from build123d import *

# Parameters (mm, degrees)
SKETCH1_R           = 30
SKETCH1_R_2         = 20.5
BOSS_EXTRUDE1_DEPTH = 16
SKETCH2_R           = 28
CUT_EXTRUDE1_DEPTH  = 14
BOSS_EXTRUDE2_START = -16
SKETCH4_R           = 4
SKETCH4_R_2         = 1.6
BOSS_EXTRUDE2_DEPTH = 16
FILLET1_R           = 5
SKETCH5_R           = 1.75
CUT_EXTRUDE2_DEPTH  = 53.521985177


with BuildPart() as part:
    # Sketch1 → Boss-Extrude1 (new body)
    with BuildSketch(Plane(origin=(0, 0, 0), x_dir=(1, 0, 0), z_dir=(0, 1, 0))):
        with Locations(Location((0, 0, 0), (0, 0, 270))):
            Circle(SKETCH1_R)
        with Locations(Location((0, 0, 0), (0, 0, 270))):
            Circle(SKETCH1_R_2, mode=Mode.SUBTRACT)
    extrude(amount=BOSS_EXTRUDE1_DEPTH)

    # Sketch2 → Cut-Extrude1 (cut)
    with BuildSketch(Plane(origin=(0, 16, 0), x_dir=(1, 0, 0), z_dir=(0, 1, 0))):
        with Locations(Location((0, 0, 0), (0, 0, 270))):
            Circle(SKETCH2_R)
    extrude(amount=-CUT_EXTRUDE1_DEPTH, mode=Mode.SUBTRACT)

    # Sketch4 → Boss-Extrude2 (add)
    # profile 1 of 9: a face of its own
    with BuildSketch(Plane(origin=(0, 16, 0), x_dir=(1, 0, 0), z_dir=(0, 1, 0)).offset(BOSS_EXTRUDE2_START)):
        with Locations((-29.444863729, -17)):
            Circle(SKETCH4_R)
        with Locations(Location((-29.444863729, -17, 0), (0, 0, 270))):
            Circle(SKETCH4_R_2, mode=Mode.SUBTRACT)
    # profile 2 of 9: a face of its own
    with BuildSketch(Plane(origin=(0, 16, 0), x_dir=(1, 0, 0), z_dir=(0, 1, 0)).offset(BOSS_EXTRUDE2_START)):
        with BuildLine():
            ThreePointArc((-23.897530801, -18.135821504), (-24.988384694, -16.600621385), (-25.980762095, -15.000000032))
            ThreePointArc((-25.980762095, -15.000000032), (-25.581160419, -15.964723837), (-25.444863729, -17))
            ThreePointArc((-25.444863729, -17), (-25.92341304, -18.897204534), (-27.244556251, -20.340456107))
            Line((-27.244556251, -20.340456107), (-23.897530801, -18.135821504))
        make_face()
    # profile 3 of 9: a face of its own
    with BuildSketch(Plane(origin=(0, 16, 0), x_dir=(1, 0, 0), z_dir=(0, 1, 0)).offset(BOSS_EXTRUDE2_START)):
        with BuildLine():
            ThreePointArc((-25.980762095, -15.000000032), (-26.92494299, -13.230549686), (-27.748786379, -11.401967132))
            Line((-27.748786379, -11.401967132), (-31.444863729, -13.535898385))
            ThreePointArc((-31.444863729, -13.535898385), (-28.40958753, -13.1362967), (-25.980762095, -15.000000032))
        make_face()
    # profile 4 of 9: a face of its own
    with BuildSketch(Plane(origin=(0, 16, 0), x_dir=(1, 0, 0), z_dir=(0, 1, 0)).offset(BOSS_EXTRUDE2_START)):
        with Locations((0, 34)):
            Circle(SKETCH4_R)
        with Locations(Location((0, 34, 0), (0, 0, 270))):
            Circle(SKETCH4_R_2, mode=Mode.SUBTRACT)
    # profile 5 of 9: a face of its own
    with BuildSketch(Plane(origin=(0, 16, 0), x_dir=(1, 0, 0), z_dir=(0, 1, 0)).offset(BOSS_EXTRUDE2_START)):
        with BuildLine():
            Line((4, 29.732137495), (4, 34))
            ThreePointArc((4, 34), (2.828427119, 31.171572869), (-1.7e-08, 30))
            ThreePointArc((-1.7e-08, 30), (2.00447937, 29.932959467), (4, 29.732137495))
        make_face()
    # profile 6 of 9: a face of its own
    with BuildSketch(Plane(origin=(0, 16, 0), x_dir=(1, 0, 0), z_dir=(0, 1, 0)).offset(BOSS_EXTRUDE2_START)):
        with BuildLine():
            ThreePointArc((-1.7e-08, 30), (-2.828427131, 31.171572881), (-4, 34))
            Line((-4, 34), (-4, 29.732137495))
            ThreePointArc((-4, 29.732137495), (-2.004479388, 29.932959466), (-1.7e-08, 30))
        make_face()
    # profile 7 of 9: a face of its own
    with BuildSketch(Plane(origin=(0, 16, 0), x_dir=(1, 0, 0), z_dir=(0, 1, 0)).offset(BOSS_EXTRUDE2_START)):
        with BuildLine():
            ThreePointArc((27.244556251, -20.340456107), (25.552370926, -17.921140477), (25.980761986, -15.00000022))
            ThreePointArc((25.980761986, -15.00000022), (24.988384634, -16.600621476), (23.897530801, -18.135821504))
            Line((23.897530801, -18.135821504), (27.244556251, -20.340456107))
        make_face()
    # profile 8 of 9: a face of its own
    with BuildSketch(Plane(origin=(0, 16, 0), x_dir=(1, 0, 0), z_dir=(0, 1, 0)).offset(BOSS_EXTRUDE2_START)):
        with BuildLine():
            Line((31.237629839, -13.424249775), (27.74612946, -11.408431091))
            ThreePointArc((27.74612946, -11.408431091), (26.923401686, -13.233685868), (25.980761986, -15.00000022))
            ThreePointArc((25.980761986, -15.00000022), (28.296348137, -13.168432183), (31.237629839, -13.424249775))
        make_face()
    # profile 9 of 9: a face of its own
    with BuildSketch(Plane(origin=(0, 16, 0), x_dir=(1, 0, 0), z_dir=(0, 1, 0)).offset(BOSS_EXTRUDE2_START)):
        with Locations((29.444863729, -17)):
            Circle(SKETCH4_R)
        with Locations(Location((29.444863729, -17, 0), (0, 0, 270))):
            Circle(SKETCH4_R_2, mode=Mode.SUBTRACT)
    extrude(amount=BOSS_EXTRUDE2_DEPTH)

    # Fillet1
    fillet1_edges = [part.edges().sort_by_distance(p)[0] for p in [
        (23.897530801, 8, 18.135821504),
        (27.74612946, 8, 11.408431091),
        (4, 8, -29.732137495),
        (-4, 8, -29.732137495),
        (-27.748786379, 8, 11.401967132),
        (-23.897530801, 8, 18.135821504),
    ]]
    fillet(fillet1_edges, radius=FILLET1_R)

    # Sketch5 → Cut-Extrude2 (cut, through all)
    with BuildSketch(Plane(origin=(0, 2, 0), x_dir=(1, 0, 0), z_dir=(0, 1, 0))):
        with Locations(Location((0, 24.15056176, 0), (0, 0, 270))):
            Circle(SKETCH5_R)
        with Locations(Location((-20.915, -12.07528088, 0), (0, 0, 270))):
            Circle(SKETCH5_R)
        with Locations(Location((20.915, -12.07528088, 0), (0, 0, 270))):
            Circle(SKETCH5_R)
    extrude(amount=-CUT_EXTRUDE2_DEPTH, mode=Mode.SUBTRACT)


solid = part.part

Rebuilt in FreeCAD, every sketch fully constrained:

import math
import FreeCAD as App
import Part
import Sketcher

V = App.Vector
Q = App.Units.Quantity


def edges_at(feature, points):
    """Names of the edges that pass closest to the given points."""
    edges = feature.Shape.Edges
    near = lambda p: min(range(len(edges)), key=lambda i: edges[i].distToShape(Part.Vertex(*p))[0])
    return sorted({f"Edge{near(p) + 1}" for p in points})

doc = App.newDocument("Part")
params = doc.addObject("Spreadsheet::Sheet", "Params")
for row, (alias, value) in enumerate([
    ("sketch1_diameter", "60 mm"),
    ("sketch1_diameter2", "41 mm"),
    ("pad1_length", "16 mm"),
    ("sketch2_diameter", "56 mm"),
    ("pocket1_length", "14 mm"),
    ("sketch3_radius", "4 mm"),
    ("sketch3_radius2", "30 mm"),
    ("sketch3_diameter", "3.2 mm"),
    ("pad2_length", "16 mm"),
    ("fillet_radius", "5 mm"),
    ("sketch4_diameter", "3.5 mm"),
], start=1):
    params.set(f"A{row}", alias)
    params.set(f"B{row}", "=" + value)
    params.setAlias(f"B{row}", alias)

body = doc.addObject("PartDesign::Body", "Body")

# Sketch on XZ plane
sketch1 = body.newObject("Sketcher::SketchObject", "Sketch")
sketch1.AttachmentSupport = (doc.getObject("XZ_Plane"), [""])
sketch1.MapMode = "FlatFace"
sketch1.addGeometry([
    Part.Circle(V(0, 0, 0), V(0, 0, 1), 30),
    Part.Circle(V(0, 0, 0), V(0, 0, 1), 20),
], False)
sketch1.addConstraint([
    Sketcher.Constraint("Coincident", 0, 3, -1, 1),
    Sketcher.Constraint("Coincident", 1, 3, -1, 1),
    Sketcher.Constraint("Diameter", 0, Q("60 mm")),
    Sketcher.Constraint("Diameter", 1, Q("41 mm")),
])
sketch1.setExpression("Constraints[2]", "Params.sketch1_diameter")
sketch1.setExpression("Constraints[3]", "Params.sketch1_diameter2")
pad1 = body.newObject("PartDesign::Pad", "Pad")
pad1.Profile = sketch1
pad1.setExpression("Length", "Params.pad1_length")
pad1.Reversed = True

# Sketch on XZ plane
sketch2 = body.newObject("Sketcher::SketchObject", "Sketch001")
sketch2.AttachmentSupport = (doc.getObject("XZ_Plane"), [""])
sketch2.MapMode = "FlatFace"
sketch2.AttachmentOffset = App.Placement(V(0, 0, -16), App.Rotation())
sketch2.addGeometry(Part.Circle(V(0, 0, 0), V(0, 0, 1), 28), False)
sketch2.addConstraint([
    Sketcher.Constraint("Coincident", 0, 3, -1, 1),
    Sketcher.Constraint("Diameter", 0, Q("56 mm")),
])
sketch2.setExpression("Constraints[1]", "Params.sketch2_diameter")
pocket1 = body.newObject("PartDesign::Pocket", "Pocket")
pocket1.Profile = sketch2
pocket1.setExpression("Length", "Params.pocket1_length")
pocket1.Reversed = True

# Sketch on XZ plane
sketch3 = body.newObject("Sketcher::SketchObject", "Sketch002")
sketch3.AttachmentSupport = (doc.getObject("XZ_Plane"), [""])
sketch3.MapMode = "FlatFace"
sketch3.addGeometry([
    Part.ArcOfCircle(Part.Circle(V(-29.4, 17, 0), V(0, 0, 1), 4), math.radians(57), math.radians(240)),  # 0
    Part.LineSegment(V(-27.2, 20.3, 0), V(-23.9, 18.1, 0)),  # 1
    Part.ArcOfCircle(Part.Circle(V(0, 0, 0), V(0, 0, 1), 30), math.radians(142.81), math.radians(150)),  # 2
    Part.ArcOfCircle(Part.Circle(V(0, 0, 0), V(0, 0, 1), 30), math.radians(150), math.radians(157.66)),  # 3
    Part.LineSegment(V(-27.7, 11.4, 0), V(-31.4, 13.5, 0)),  # 4
    Part.Circle(V(-29.4, 17, 0), V(0, 0, 1), 1.6),  # 5
    Part.ArcOfCircle(Part.Circle(V(0, -34, 0), V(0, 0, 1), 4), math.radians(180), math.radians(360)),  # 6
    Part.LineSegment(V(-4, -34, 0), V(-4, -29.7, 0)),  # 7
    Part.ArcOfCircle(Part.Circle(V(0, 0, 0), V(0, 0, 1), 30), math.radians(-97.66), math.radians(-90)),  # 8
    Part.ArcOfCircle(Part.Circle(V(0, 0, 0), V(0, 0, 1), 30), math.radians(-90), math.radians(-82.34)),  # 9
    Part.LineSegment(V(4, -29.7, 0), V(4, -34, 0)),  # 10
    Part.Circle(V(0, -34, 0), V(0, 0, 1), 1.6),  # 11
    Part.ArcOfCircle(Part.Circle(V(0, 0, 0), V(0, 0, 1), 30), math.radians(30), math.radians(37.19)),  # 12
    Part.LineSegment(V(23.9, 18.1, 0), V(27.2, 20.3, 0)),  # 13
    Part.ArcOfCircle(Part.Circle(V(29.4, 17, 0), V(0, 0, 1), 4), math.radians(-63), math.radians(123)),  # 14
    Part.LineSegment(V(31.2, 13.4, 0), V(27.7, 11.4, 0)),  # 15
    Part.ArcOfCircle(Part.Circle(V(0, 0, 0), V(0, 0, 1), 30), math.radians(22.35), math.radians(30)),  # 16
    Part.Circle(V(29.4, 17, 0), V(0, 0, 1), 1.6),  # 17
], False)
sketch3.addConstraint([
    Sketcher.Constraint("Tangent", 0, 1, 1, 1),
    Sketcher.Constraint("Coincident", 1, 2, 2, 1),
    Sketcher.Constraint("Tangent", 2, 2, 3, 1),
    Sketcher.Constraint("Coincident", 3, 2, 4, 1),
    Sketcher.Constraint("Tangent", 4, 2, 0, 2),
    Sketcher.Constraint("Tangent", 6, 1, 7, 1),
    Sketcher.Constraint("Coincident", 7, 2, 8, 1),
    Sketcher.Constraint("Tangent", 8, 2, 9, 1),
    Sketcher.Constraint("Coincident", 9, 2, 10, 1),
    Sketcher.Constraint("Tangent", 10, 2, 6, 2),
    Sketcher.Constraint("Coincident", 12, 2, 13, 1),
    Sketcher.Constraint("Tangent", 13, 2, 14, 2),
    Sketcher.Constraint("Coincident", 14, 1, 15, 1),
    Sketcher.Constraint("Coincident", 15, 2, 16, 1),
    Sketcher.Constraint("Tangent", 16, 2, 12, 1),
    Sketcher.Constraint("Vertical", 7),
    Sketcher.Constraint("Vertical", 10),
    Sketcher.Constraint("Coincident", 2, 3, -1, 1),
    Sketcher.Constraint("Coincident", 8, 3, -1, 1),
    Sketcher.Constraint("Coincident", 12, 3, -1, 1),
    Sketcher.Constraint("Coincident", 5, 3, 0, 3),
    Sketcher.Constraint("Coincident", 11, 3, 6, 3),
    Sketcher.Constraint("Coincident", 17, 3, 14, 3),
    Sketcher.Constraint("Equal", 2, 3),
    Sketcher.Constraint("Equal", 0, 6),
    Sketcher.Constraint("Equal", 3, 8),
    Sketcher.Constraint("Equal", 8, 9),
    Sketcher.Constraint("Equal", 5, 11),
    Sketcher.Constraint("Equal", 9, 12),
    Sketcher.Constraint("Equal", 6, 14),
    Sketcher.Constraint("Equal", 12, 16),
    Sketcher.Constraint("Equal", 11, 17),
    Sketcher.Constraint("Symmetric", 0, 3, 14, 3, -2),
    Sketcher.Constraint("PointOnObject", 6, 3, -2),
    Sketcher.Constraint("PointOnObject", 8, 2, -2),
    Sketcher.Constraint("Horizontal", 1, 2, 12, 2),
    Sketcher.Constraint("Horizontal", 2, 2, 16, 2),
    Sketcher.Constraint("Radius", 0, Q("4 mm")),
    Sketcher.Constraint("Radius", 2, Q("30 mm")),
    Sketcher.Constraint("Diameter", 5, Q("3.2 mm")),
    Sketcher.Constraint("Angle", 4, Q("150 deg")),
    Sketcher.Constraint("Angle", 15, Q("-150 deg")),
    Sketcher.Constraint("DistanceY", -1, 1, 0, 3, Q("17 mm")),
    Sketcher.Constraint("DistanceY", 6, 3, -1, 1, Q("34 mm")),
    Sketcher.Constraint("DistanceY", -1, 1, 2, 2, Q("15 mm")),
    Sketcher.Constraint("DistanceX", 0, 3, 2, 2, Q("3.464102 mm")),
    Sketcher.Constraint("DistanceX", 12, 2, 14, 1, Q("7.340099 mm")),
    Sketcher.Constraint("DistanceX", 15, 2, 14, 1, Q("3.4915 mm")),
])
sketch3.setExpression("Constraints[37]", "Params.sketch3_radius")
sketch3.setExpression("Constraints[38]", "Params.sketch3_radius2")
sketch3.setExpression("Constraints[39]", "Params.sketch3_diameter")
pad2 = body.newObject("PartDesign::Pad", "Pad001")
pad2.Profile = sketch3
pad2.setExpression("Length", "Params.pad2_length")
pad2.Reversed = True
doc.recompute()

fillet = body.newObject("PartDesign::Fillet", "Fillet")
fillet.Base = (pad2, edges_at(pad2, [
    (23.898, 8, 18.136),
    (27.746, 8, 11.408),
    (4, 8, -29.732),
    (-4, 8, -29.732),
    (-27.749, 8, 11.402),
    (-23.898, 8, 18.136),
]))
fillet.setExpression("Radius", "Params.fillet_radius")

# Sketch on XZ plane
sketch4 = body.newObject("Sketcher::SketchObject", "Sketch003")
sketch4.AttachmentSupport = (doc.getObject("XZ_Plane"), [""])
sketch4.MapMode = "FlatFace"
sketch4.AttachmentOffset = App.Placement(V(0, 0, -2), App.Rotation())
sketch4.addGeometry([
    Part.Circle(V(0, -24.2, 0), V(0, 0, 1), 1.8),
    Part.Circle(V(-20.9, 12.1, 0), V(0, 0, 1), 1.8),
    Part.Circle(V(20.9, 12.1, 0), V(0, 0, 1), 1.8),
], False)
sketch4.addConstraint([
    Sketcher.Constraint("Equal", 0, 1),
    Sketcher.Constraint("Equal", 1, 2),
    Sketcher.Constraint("Symmetric", 1, 3, 2, 3, -2),
    Sketcher.Constraint("PointOnObject", 0, 3, -2),
    Sketcher.Constraint("Diameter", 0, Q("3.5 mm")),
    Sketcher.Constraint("DistanceX", 1, 3, 2, 3, Q("41.83 mm")),
    Sketcher.Constraint("DistanceY", 0, 3, -1, 1, Q("24.150562 mm")),
    Sketcher.Constraint("DistanceY", -1, 1, 1, 3, Q("12.075281 mm")),
])
sketch4.setExpression("Constraints[4]", "Params.sketch4_diameter")
pocket2 = body.newObject("PartDesign::Pocket", "Pocket001")
pocket2.Profile = sketch4
pocket2.Type = "ThroughAll"
pocket2.Reversed = True

doc.recompute()
